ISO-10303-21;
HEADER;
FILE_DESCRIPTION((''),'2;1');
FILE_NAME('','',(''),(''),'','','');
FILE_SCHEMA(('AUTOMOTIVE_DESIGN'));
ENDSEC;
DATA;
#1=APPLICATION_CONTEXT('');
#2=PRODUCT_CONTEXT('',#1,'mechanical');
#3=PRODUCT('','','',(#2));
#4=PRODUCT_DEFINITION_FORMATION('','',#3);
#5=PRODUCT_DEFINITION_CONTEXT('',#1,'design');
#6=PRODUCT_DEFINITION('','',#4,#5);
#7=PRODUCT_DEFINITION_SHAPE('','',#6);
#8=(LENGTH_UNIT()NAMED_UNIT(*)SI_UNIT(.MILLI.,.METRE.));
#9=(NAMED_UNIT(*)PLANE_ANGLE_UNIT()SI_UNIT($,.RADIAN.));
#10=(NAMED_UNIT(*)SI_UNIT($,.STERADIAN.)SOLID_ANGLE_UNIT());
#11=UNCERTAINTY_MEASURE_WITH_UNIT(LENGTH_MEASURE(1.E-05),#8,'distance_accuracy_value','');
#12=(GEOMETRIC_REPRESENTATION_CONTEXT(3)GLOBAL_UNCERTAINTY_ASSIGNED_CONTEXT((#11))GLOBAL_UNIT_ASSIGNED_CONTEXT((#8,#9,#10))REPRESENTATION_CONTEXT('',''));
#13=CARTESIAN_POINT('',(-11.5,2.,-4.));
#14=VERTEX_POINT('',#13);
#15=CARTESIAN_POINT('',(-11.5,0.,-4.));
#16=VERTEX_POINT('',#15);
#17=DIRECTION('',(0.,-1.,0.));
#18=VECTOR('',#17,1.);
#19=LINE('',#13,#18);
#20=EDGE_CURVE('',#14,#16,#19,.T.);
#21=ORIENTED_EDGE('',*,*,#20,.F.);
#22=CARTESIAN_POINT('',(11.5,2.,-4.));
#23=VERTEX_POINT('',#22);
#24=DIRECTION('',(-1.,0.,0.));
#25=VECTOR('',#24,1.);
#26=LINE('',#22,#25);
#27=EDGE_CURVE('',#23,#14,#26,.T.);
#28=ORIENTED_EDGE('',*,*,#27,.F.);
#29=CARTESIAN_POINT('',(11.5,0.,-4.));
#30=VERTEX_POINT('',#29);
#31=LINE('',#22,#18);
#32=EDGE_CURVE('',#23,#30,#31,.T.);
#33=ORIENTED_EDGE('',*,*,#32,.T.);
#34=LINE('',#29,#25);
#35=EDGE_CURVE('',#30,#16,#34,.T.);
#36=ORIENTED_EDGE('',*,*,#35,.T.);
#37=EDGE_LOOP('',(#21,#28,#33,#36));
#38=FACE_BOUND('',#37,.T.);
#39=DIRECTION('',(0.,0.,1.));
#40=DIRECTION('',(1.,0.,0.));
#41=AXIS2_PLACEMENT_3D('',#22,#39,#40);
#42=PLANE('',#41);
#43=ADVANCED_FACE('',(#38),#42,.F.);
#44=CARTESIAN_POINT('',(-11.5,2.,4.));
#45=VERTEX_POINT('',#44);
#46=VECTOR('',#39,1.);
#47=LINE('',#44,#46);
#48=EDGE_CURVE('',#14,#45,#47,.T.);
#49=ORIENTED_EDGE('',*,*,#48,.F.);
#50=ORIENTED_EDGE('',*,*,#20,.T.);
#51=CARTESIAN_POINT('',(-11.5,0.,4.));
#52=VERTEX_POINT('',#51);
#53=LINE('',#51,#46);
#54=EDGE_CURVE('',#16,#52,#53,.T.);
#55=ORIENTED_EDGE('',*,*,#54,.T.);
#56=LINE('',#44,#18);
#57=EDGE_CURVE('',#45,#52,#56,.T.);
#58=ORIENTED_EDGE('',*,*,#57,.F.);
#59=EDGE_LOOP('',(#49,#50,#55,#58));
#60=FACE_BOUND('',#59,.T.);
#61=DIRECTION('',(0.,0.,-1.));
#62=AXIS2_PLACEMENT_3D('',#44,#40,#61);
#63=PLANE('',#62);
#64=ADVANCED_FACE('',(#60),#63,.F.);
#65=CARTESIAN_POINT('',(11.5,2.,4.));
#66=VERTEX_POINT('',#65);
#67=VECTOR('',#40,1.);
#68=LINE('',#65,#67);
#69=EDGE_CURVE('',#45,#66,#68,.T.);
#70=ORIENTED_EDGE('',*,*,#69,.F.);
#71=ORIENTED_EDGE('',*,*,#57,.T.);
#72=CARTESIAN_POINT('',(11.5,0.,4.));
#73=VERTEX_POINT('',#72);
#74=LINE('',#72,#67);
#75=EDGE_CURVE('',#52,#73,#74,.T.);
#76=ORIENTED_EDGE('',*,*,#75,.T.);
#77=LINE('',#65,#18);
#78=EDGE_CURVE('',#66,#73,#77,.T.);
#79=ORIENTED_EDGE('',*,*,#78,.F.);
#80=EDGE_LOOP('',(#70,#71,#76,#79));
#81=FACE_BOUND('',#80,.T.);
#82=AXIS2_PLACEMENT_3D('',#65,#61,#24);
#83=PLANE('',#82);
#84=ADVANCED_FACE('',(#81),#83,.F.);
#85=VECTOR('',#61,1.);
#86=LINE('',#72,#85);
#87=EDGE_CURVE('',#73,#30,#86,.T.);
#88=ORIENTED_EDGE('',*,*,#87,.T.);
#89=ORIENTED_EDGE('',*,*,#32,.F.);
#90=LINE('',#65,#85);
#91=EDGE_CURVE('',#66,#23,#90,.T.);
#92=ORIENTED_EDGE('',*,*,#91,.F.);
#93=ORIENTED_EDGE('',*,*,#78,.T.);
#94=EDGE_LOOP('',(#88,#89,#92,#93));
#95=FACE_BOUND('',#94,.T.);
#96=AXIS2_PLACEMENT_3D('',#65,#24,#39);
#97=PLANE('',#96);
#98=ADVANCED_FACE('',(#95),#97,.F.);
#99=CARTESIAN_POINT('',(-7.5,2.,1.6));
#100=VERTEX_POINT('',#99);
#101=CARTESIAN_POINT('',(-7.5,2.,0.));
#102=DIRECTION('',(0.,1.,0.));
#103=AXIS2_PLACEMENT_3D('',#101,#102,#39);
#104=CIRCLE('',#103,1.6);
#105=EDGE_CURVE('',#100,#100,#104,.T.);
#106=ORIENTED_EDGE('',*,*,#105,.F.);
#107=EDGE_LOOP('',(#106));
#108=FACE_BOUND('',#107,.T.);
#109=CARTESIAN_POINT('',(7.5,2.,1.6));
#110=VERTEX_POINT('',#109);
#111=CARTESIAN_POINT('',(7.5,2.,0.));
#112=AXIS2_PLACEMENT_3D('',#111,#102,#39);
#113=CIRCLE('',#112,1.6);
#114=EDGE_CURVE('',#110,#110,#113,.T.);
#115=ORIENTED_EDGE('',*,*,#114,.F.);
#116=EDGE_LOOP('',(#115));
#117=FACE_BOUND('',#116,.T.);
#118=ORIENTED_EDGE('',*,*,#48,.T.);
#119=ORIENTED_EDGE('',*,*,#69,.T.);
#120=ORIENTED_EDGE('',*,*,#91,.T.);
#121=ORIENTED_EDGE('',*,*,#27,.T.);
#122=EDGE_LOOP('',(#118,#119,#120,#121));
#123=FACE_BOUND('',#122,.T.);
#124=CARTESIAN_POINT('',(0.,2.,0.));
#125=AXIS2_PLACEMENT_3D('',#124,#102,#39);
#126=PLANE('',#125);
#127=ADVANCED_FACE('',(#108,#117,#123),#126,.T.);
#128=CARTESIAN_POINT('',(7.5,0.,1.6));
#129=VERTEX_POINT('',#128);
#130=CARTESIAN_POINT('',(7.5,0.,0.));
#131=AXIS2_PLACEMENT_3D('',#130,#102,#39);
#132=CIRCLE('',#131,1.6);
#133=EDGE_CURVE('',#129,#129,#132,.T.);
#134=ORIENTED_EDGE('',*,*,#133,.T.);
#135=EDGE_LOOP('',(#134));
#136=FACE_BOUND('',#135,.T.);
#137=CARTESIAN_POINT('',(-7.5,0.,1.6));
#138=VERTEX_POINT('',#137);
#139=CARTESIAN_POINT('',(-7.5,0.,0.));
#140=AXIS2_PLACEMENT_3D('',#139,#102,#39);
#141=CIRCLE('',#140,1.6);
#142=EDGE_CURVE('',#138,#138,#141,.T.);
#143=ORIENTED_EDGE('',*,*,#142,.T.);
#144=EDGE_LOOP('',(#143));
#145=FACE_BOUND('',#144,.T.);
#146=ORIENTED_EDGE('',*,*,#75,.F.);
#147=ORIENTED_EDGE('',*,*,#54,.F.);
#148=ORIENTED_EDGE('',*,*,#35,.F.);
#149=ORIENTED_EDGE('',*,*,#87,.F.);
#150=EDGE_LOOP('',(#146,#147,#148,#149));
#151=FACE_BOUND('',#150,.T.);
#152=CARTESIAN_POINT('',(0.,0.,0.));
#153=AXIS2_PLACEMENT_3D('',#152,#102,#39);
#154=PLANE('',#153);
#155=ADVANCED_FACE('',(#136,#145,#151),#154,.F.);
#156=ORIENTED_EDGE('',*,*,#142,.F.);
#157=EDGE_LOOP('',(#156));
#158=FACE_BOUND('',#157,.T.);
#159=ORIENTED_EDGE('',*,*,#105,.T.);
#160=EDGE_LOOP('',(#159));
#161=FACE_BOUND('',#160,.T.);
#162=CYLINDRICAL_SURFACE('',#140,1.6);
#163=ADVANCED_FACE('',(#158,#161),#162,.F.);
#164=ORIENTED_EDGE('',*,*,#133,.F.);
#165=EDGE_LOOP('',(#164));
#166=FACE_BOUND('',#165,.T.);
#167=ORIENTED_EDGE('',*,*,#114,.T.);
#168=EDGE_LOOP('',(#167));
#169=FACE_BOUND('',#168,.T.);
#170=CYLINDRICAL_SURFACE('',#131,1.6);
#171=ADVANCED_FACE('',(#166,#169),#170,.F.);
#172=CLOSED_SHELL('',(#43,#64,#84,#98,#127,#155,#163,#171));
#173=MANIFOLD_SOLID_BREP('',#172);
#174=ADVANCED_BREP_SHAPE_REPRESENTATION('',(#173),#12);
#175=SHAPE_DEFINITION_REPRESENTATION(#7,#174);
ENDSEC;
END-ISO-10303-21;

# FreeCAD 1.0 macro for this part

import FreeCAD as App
import Part
import Sketcher
Q = App.Units.Quantity

doc = App.newDocument("Part")
params = doc.addObject("Spreadsheet::Sheet", "Params")
for row, (alias, value) in enumerate([
    ("sketch1_width", "23 mm"),
    ("sketch1_height", "8 mm"),
    ("pad1_length", "2 mm"),
    ("sketch2_diameter", "3.2 mm"),
], start=1):
    params.set(f"A{row}", alias)
    params.set(f"B{row}", "=" + value)
    params.setAlias(f"B{row}", alias)

body = doc.addObject("PartDesign::Body", "Body")

# Sketch on XZ plane
sketch1 = doc.addObject("Sketcher::SketchObject", "Sketch")
body.addObject(sketch1)
sketch1.AttachmentSupport = (doc.XZ_Plane, [""])
sketch1.MapMode = "FlatFace"
sketch1.addGeometry(Part.LineSegment(App.Vector(-11.5, -4, 0), App.Vector(-11.5, 4, 0)), False)
sketch1.addGeometry(Part.LineSegment(App.Vector(-11.5, 4, 0), App.Vector(11.5, 4, 0)), False)
sketch1.addGeometry(Part.LineSegment(App.Vector(11.5, 4, 0), App.Vector(11.5, -4, 0)), False)
sketch1.addGeometry(Part.LineSegment(App.Vector(11.5, -4, 0), App.Vector(-11.5, -4, 0)), False)
sketch1.addConstraint(Sketcher.Constraint("Coincident", 0, 2, 1, 1))
sketch1.addConstraint(Sketcher.Constraint("Coincident", 1, 2, 2, 1))
sketch1.addConstraint(Sketcher.Constraint("Coincident", 2, 2, 3, 1))
sketch1.addConstraint(Sketcher.Constraint("Coincident", 3, 2, 0, 1))
sketch1.addConstraint(Sketcher.Constraint("Vertical", 0))
sketch1.addConstraint(Sketcher.Constraint("Horizontal", 1))
sketch1.addConstraint(Sketcher.Constraint("Vertical", 2))
sketch1.addConstraint(Sketcher.Constraint("Horizontal", 3))
sketch1.addConstraint(Sketcher.Constraint("Symmetric", 0, 2, 2, 2, -1, 1))
sketch1.addConstraint(Sketcher.Constraint("DistanceX", 1, 1, 1, 2, Q("23 mm")))
sketch1.addConstraint(Sketcher.Constraint("DistanceY", 0, 1, 0, 2, Q("8 mm")))
sketch1.setExpression("Constraints[9]", "Params.sketch1_width")
sketch1.setExpression("Constraints[10]", "Params.sketch1_height")
pad1 = doc.addObject("PartDesign::Pad", "Pad")
body.addObject(pad1)
pad1.Profile = sketch1
pad1.setExpression("Length", "Params.pad1_length")
pad1.Reversed = True

# Sketch on XZ plane
sketch2 = doc.addObject("Sketcher::SketchObject", "Sketch001")
body.addObject(sketch2)
sketch2.AttachmentSupport = (doc.XZ_Plane, [""])
sketch2.MapMode = "FlatFace"
sketch2.AttachmentOffset = App.Placement(App.Vector(0, 0, -2), App.Rotation())
sketch2.addGeometry(Part.Circle(App.Vector(-7.5, 0, 0), App.Vector(0, 0, 1), 1.6), False)
sketch2.addGeometry(Part.Circle(App.Vector(7.5, 0, 0), App.Vector(0, 0, 1), 1.6), False)
sketch2.addConstraint(Sketcher.Constraint("Equal", 0, 1))
sketch2.addConstraint(Sketcher.Constraint("Symmetric", 0, 3, 1, 3, -1, 1))
sketch2.addConstraint(Sketcher.Constraint("PointOnObject", 0, 3, -1))
sketch2.addConstraint(Sketcher.Constraint("Diameter", 0, Q("3.2 mm")))
sketch2.addConstraint(Sketcher.Constraint("DistanceX", 0, 3, 1, 3, Q("15 mm")))
sketch2.setExpression("Constraints[3]", "Params.sketch2_diameter")
pocket1 = doc.addObject("PartDesign::Pocket", "Pocket")
body.addObject(pocket1)
pocket1.Profile = sketch2
pocket1.Type = "ThroughAll"
pocket1.Reversed = True

doc.recompute()
